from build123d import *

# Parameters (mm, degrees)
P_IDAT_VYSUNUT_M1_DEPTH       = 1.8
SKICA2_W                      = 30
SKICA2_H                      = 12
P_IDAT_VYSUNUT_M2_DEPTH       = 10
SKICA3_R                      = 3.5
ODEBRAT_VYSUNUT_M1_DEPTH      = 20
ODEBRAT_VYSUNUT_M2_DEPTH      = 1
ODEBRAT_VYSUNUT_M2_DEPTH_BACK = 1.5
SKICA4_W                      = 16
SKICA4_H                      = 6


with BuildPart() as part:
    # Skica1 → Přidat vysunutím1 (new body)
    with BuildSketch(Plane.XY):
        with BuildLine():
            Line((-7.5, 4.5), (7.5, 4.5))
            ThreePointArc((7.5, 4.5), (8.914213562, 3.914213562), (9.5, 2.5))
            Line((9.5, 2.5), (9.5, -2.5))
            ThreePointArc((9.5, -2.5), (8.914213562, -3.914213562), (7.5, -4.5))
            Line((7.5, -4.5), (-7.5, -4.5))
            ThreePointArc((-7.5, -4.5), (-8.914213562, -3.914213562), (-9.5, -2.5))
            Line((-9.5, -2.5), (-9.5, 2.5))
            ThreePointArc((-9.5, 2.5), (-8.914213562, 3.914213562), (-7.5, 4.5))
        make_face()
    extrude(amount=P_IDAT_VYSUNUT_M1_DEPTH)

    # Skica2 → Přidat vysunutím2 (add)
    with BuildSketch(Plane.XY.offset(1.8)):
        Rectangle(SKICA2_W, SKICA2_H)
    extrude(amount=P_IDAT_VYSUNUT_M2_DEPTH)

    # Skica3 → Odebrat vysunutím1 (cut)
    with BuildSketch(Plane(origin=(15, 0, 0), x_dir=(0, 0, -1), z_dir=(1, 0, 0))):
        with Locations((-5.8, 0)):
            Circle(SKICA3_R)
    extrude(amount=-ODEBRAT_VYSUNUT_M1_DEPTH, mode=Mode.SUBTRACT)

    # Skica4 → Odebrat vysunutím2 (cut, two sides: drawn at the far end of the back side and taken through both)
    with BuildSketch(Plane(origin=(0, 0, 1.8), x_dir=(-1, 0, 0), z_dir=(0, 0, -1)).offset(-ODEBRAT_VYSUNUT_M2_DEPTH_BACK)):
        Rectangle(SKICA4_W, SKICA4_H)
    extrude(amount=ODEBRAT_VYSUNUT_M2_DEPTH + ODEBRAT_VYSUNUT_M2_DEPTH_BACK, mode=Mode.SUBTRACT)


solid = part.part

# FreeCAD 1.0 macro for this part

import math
import FreeCAD as App
import Part
import Sketcher
from FreeCAD import Vector

doc = App.newDocument("Part")
params = doc.addObject("Spreadsheet::Sheet", "Params")
for row, (alias, value) in enumerate([
    ("sketch1_radius", "2 mm"),
    ("sketch1_width", "15 mm"),
    ("sketch1_height", "5 mm"),
    ("pad1_length", "1.8 mm"),
    ("sketch2_width", "30 mm"),
    ("sketch2_height", "12 mm"),
    ("pad2_length", "10 mm"),
    ("sketch3_diameter", "7 mm"),
    ("pocket1_length", "20 mm"),
    ("sketch4_width", "16 mm"),
    ("sketch4_height", "6 mm"),
    ("pocket2_length", "1 mm"),
    ("pocket2_length2", "1.5 mm"),
], start=1):
    params.set(f"A{row}", alias)
    params.set(f"B{row}", "=" + value)
    params.setAlias(f"B{row}", alias)

body = doc.addObject("PartDesign::Body", "Body")

sketch1 = doc.addObject("Sketcher::SketchObject", "Sketch")
body.addObject(sketch1)
sketch1.AttachmentSupport = (doc.XY_Plane, [""])
sketch1.MapMode = "FlatFace"
sketch1.addGeometry(Part.LineSegment(Vector(7.5, 4.5, 0), Vector(-7.5, 4.5, 0)), False)
sketch1.addGeometry(Part.ArcOfCircle(Part.Circle(Vector(-7.5, 2.5, 0), Vector(0, 0, 1), 2), math.radians(90), math.radians(180)), False)
sketch1.addGeometry(Part.LineSegment(Vector(-9.5, 2.5, 0), Vector(-9.5, -2.5, 0)), False)
sketch1.addGeometry(Part.ArcOfCircle(Part.Circle(Vector(-7.5, -2.5, 0), Vector(0, 0, 1), 2), math.radians(-180), math.radians(-90)), False)
sketch1.addGeometry(Part.LineSegment(Vector(-7.5, -4.5, 0), Vector(7.5, -4.5, 0)), False)
sketch1.addGeometry(Part.ArcOfCircle(Part.Circle(Vector(7.5, -2.5, 0), Vector(0, 0, 1), 2), math.radians(-90), math.radians(0)), False)
sketch1.addGeometry(Part.LineSegment(Vector(9.5, -2.5, 0), Vector(9.5, 2.5, 0)), False)
sketch1.addGeometry(Part.ArcOfCircle(Part.Circle(Vector(7.5, 2.5, 0), Vector(0, 0, 1), 2), math.radians(0), math.radians(90)), False)
sketch1.addConstraint(Sketcher.Constraint("Tangent", 0, 2, 1, 1))
sketch1.addConstraint(Sketcher.Constraint("Tangent", 1, 2, 2, 1))
sketch1.addConstraint(Sketcher.Constraint("Tangent", 2, 2, 3, 1))
sketch1.addConstraint(Sketcher.Constraint("Tangent", 3, 2, 4, 1))
sketch1.addConstraint(Sketcher.Constraint("Tangent", 4, 2, 5, 1))
sketch1.addConstraint(Sketcher.Constraint("Tangent", 5, 2, 6, 1))
sketch1.addConstraint(Sketcher.Constraint("Tangent", 6, 2, 7, 1))
sketch1.addConstraint(Sketcher.Constraint("Tangent", 7, 2, 0, 1))
sketch1.addConstraint(Sketcher.Constraint("Horizontal", 0))
sketch1.addConstraint(Sketcher.Constraint("Vertical", 2))
sketch1.addConstraint(Sketcher.Constraint("Horizontal", 4))
sketch1.addConstraint(Sketcher.Constraint("Vertical", 6))
sketch1.addConstraint(Sketcher.Constraint("Equal", 1, 3))
sketch1.addConstraint(Sketcher.Constraint("Equal", 3, 5))
sketch1.addConstraint(Sketcher.Constraint("Equal", 5, 7))
sketch1.addConstraint(Sketcher.Constraint("Symmetric", 1, 3, 5, 3, -1, 1))
sketch1.addConstraint(Sketcher.Constraint("Radius", 1, 2.0))
sketch1.addConstraint(Sketcher.Constraint("DistanceX", 0, 2, 0, 1, 15.0))
sketch1.addConstraint(Sketcher.Constraint("DistanceY", 2, 2, 2, 1, 5.0))
sketch1.setExpression("Constraints[16]", "Params.sketch1_radius")
sketch1.setExpression("Constraints[17]", "Params.sketch1_width")
sketch1.setExpression("Constraints[18]", "Params.sketch1_height")
pad1 = doc.addObject("PartDesign::Pad", "Pad")
body.addObject(pad1)
pad1.Profile = sketch1
pad1.setExpression("Length", "Params.pad1_length")

sketch2 = doc.addObject("Sketcher::SketchObject", "Sketch001")
body.addObject(sketch2)
sketch2.AttachmentSupport = (doc.XY_Plane, [""])
sketch2.MapMode = "FlatFace"
sketch2.AttachmentOffset = App.Placement(Vector(0, 0, 1.8), App.Rotation())
sketch2.addGeometry(Part.LineSegment(Vector(-15, 6, 0), Vector(-15, -6, 0)), False)
sketch2.addGeometry(Part.LineSegment(Vector(-15, -6, 0), Vector(15, -6, 0)), False)
sketch2.addGeometry(Part.LineSegment(Vector(15, -6, 0), Vector(15, 6, 0)), False)
sketch2.addGeometry(Part.LineSegment(Vector(15, 6, 0), Vector(-15, 6, 0)), False)
sketch2.addConstraint(Sketcher.Constraint("Coincident", 0, 2, 1, 1))
sketch2.addConstraint(Sketcher.Constraint("Coincident", 1, 2, 2, 1))
sketch2.addConstraint(Sketcher.Constraint("Coincident", 2, 2, 3, 1))
sketch2.addConstraint(Sketcher.Constraint("Coincident", 3, 2, 0, 1))
sketch2.addConstraint(Sketcher.Constraint("Vertical", 0))
sketch2.addConstraint(Sketcher.Constraint("Horizontal", 1))
sketch2.addConstraint(Sketcher.Constraint("Vertical", 2))
sketch2.addConstraint(Sketcher.Constraint("Horizontal", 3))
sketch2.addConstraint(Sketcher.Constraint("Symmetric", 0, 2, 2, 2, -1, 1))
sketch2.addConstraint(Sketcher.Constraint("DistanceX", 1, 1, 1, 2, 30.0))
sketch2.addConstraint(Sketcher.Constraint("DistanceY", 0, 2, 0, 1, 12.0))
sketch2.setExpression("Constraints[9]", "Params.sketch2_width")
sketch2.setExpression("Constraints[10]", "Params.sketch2_height")
pad2 = doc.addObject("PartDesign::Pad", "Pad001")
body.addObject(pad2)
pad2.Profile = sketch2
pad2.setExpression("Length", "Params.pad2_length")

sketch3 = doc.addObject("Sketcher::SketchObject", "Sketch002")
body.addObject(sketch3)
sketch3.AttachmentSupport = (doc.YZ_Plane, [""])
sketch3.MapMode = "FlatFace"
sketch3.AttachmentOffset = App.Placement(Vector(0, 0, 15), App.Rotation())
sketch3.addGeometry(Part.Circle(Vector(0, 5.8, 0), Vector(0, 0, 1), 3.5), False)
sketch3.addConstraint(Sketcher.Constraint("PointOnObject", 0, 3, -2))
sketch3.addConstraint(Sketcher.Constraint("Diameter", 0, 7.0))
sketch3.addConstraint(Sketcher.Constraint("DistanceY", -1, 1, 0, 3, 5.8))
sketch3.setExpression("Constraints[1]", "Params.sketch3_diameter")
pocket1 = doc.addObject("PartDesign::Pocket", "Pocket")
body.addObject(pocket1)
pocket1.Profile = sketch3
pocket1.setExpression("Length", "Params.pocket1_length")

sketch4 = doc.addObject("Sketcher::SketchObject", "Sketch003")
body.addObject(sketch4)
sketch4.AttachmentSupport = (doc.XY_Plane, [""])
sketch4.MapMode = "FlatFace"
sketch4.AttachmentOffset = App.Placement(Vector(0, 0, 1.8), App.Rotation())
sketch4.addGeometry(Part.LineSegment(Vector(8, 3, 0), Vector(8, -3, 0)), False)
sketch4.addGeometry(Part.LineSegment(Vector(8, -3, 0), Vector(-8, -3, 0)), False)
sketch4.addGeometry(Part.LineSegment(Vector(-8, -3, 0), Vector(-8, 3, 0)), False)
sketch4.addGeometry(Part.LineSegment(Vector(-8, 3, 0), Vector(8, 3, 0)), False)
sketch4.addConstraint(Sketcher.Constraint("Coincident", 0, 2, 1, 1))
sketch4.addConstraint(Sketcher.Constraint("Coincident", 1, 2, 2, 1))
sketch4.addConstraint(Sketcher.Constraint("Coincident", 2, 2, 3, 1))
sketch4.addConstraint(Sketcher.Constraint("Coincident", 3, 2, 0, 1))
sketch4.addConstraint(Sketcher.Constraint("Vertical", 0))
sketch4.addConstraint(Sketcher.Constraint("Horizontal", 1))
sketch4.addConstraint(Sketcher.Constraint("Vertical", 2))
sketch4.addConstraint(Sketcher.Constraint("Horizontal", 3))
sketch4.addConstraint(Sketcher.Constraint("Symmetric", 0, 2, 2, 2, -1, 1))
sketch4.addConstraint(Sketcher.Constraint("DistanceX", 1, 2, 1, 1, 16.0))
sketch4.addConstraint(Sketcher.Constraint("DistanceY", 0, 2, 0, 1, 6.0))
sketch4.setExpression("Constraints[9]", "Params.sketch4_width")
sketch4.setExpression("Constraints[10]", "Params.sketch4_height")
pocket2 = doc.addObject("PartDesign::Pocket", "Pocket001")
body.addObject(pocket2)
pocket2.Profile = sketch4
pocket2.Type = "TwoLengths"
pocket2.setExpression("Length", "Params.pocket2_length")
pocket2.setExpression("Length2", "Params.pocket2_length2")

doc.recompute()
